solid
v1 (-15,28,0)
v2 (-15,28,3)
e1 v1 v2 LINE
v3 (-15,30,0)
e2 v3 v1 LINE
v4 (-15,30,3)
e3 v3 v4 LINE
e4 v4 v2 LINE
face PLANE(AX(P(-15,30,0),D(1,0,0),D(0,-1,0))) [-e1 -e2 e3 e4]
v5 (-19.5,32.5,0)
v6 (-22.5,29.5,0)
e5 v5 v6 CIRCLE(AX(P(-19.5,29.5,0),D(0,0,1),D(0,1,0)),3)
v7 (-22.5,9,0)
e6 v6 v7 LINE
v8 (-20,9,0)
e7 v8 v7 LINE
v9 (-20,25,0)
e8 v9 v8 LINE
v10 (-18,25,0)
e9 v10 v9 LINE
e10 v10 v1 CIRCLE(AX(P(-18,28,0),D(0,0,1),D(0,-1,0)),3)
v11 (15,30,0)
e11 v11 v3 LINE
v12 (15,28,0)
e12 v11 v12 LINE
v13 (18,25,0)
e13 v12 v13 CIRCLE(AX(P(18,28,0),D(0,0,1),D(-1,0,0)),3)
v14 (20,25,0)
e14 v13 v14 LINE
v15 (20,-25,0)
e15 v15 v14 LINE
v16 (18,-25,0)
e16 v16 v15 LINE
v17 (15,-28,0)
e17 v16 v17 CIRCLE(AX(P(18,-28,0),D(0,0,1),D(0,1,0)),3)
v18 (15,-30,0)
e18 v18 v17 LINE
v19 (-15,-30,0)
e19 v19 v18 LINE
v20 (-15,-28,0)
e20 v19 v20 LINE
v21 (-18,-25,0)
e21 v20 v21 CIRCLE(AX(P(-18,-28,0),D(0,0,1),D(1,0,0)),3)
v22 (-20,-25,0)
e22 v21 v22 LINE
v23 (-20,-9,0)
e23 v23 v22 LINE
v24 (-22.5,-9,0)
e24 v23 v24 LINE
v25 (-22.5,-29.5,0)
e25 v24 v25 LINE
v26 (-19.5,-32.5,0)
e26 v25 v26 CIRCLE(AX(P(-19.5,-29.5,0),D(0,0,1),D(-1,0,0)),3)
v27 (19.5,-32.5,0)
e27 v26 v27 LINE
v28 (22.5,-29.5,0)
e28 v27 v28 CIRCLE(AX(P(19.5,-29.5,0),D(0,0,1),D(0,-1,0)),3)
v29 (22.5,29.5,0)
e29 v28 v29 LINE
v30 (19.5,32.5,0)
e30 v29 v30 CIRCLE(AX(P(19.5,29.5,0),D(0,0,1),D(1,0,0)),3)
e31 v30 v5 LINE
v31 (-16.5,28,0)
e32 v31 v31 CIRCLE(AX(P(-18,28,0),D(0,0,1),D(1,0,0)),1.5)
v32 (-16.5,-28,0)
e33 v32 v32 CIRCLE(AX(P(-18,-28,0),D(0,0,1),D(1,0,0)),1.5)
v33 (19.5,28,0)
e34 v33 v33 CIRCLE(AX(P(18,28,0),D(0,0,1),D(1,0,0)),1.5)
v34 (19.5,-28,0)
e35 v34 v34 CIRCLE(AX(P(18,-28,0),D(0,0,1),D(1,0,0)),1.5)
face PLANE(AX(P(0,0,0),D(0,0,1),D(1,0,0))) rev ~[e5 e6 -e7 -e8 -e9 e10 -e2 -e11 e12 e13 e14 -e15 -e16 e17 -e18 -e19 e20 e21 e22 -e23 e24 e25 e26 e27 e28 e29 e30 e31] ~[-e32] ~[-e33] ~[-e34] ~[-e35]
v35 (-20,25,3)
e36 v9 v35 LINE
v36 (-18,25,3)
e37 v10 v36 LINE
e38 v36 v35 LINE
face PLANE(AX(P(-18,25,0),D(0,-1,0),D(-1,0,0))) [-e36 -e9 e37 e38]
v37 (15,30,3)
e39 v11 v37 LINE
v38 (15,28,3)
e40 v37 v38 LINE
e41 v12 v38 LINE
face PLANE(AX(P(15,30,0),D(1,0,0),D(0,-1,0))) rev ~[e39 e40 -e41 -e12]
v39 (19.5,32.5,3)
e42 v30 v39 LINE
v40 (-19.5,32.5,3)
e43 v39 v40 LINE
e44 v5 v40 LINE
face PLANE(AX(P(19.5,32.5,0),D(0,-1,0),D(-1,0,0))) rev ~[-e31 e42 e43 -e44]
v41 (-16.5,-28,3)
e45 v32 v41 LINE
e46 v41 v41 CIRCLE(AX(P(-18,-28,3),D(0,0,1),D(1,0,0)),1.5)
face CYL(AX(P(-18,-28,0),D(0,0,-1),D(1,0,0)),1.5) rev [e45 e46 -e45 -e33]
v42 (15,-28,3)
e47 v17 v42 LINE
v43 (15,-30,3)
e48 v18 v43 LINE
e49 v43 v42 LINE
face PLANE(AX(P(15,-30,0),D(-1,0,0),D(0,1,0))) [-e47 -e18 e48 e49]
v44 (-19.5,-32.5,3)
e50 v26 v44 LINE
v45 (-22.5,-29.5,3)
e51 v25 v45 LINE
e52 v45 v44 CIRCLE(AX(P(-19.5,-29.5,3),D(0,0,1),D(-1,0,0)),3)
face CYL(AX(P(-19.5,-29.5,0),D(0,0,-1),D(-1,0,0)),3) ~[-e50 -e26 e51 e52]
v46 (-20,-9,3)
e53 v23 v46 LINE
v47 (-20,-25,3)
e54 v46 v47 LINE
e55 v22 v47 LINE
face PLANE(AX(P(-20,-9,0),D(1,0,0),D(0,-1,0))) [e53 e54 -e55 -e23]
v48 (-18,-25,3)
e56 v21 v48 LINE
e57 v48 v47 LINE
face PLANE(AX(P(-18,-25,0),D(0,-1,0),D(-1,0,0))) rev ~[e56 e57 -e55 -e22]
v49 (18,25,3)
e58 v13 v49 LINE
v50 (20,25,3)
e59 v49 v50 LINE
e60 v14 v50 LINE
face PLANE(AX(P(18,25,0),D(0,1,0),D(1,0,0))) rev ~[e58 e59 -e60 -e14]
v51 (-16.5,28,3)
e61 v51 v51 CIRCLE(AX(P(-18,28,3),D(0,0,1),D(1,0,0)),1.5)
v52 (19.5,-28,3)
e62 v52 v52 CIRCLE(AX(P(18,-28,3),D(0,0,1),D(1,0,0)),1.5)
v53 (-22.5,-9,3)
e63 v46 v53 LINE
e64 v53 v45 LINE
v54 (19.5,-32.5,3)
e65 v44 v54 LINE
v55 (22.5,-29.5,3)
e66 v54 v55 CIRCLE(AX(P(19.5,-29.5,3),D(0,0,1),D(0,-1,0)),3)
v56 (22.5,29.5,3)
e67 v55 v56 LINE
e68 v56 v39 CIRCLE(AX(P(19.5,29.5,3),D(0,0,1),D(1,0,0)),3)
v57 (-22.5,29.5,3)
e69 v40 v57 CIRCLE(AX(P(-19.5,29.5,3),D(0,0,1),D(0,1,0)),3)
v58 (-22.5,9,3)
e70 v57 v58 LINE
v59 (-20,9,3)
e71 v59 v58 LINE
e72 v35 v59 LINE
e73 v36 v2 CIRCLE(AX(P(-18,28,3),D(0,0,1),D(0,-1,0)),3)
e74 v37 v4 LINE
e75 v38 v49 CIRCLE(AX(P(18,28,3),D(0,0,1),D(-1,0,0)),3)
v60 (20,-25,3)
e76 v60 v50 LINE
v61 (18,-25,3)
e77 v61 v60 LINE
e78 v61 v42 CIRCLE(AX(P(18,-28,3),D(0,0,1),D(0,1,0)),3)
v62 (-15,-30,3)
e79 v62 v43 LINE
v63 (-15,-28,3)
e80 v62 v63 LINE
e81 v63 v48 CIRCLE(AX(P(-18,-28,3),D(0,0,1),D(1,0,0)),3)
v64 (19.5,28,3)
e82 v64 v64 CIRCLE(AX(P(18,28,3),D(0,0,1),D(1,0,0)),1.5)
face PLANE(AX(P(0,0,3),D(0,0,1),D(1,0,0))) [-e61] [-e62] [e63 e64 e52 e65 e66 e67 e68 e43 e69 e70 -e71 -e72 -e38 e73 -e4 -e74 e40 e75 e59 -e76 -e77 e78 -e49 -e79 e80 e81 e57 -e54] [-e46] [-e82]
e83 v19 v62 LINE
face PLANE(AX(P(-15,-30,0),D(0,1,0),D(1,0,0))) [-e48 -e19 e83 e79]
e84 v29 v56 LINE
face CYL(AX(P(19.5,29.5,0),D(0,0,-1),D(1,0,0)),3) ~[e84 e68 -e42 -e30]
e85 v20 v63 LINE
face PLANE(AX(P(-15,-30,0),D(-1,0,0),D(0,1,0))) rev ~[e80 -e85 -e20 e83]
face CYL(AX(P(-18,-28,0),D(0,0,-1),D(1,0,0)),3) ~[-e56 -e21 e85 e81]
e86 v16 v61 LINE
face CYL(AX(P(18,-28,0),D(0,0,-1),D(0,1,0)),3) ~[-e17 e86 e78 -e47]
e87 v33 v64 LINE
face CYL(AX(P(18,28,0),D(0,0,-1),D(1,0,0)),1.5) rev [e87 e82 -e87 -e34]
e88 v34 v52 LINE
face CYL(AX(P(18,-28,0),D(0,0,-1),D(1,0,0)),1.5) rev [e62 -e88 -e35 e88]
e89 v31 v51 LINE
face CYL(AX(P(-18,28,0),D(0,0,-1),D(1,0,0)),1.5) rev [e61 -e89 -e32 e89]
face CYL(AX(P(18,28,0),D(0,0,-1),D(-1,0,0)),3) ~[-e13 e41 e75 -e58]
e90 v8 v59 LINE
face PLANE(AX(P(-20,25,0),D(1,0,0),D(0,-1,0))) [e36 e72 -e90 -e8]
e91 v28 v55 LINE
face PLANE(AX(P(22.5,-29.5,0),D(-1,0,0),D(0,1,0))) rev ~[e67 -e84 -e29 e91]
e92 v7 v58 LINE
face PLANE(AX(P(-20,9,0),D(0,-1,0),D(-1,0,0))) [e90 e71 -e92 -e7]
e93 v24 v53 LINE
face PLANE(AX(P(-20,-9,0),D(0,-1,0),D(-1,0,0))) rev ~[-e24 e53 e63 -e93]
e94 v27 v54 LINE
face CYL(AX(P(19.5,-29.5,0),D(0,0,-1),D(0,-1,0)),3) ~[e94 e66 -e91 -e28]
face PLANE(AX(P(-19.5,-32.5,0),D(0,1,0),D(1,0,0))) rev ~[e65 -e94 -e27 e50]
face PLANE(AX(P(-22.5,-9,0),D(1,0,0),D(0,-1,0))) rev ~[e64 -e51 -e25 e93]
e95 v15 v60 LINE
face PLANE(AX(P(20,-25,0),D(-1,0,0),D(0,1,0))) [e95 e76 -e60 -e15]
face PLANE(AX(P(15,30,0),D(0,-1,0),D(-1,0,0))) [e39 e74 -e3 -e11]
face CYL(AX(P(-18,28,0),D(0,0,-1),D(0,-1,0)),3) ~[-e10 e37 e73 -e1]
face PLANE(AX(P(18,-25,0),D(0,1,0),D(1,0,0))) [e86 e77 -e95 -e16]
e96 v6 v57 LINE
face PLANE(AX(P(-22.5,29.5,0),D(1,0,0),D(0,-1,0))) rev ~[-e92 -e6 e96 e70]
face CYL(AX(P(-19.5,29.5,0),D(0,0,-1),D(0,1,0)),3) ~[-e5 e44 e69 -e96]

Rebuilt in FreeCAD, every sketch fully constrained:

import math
import FreeCAD as App
import Part
import Sketcher
from FreeCAD import Vector
Q = App.Units.Quantity

doc = App.newDocument("Part")
body = doc.addObject("PartDesign::Body", "Body")

sketch1 = body.newObject("Sketcher::SketchObject", "Sketch")
sketch1.AttachmentSupport = (doc.getObject("XY_Plane"), [""])
sketch1.MapMode = "FlatFace"
sketch1.addGeometry([
    Part.ArcOfCircle(Part.Circle(Vector(19.5, 29.5, 0), Vector(0, 0, 1), 3), math.radians(0), math.radians(90)),
    Part.LineSegment(Vector(19.5, 32.5, 0), Vector(-19.5, 32.5, 0)),
    Part.ArcOfCircle(Part.Circle(Vector(-19.5, 29.5, 0), Vector(0, 0, 1), 3), math.radians(90), math.radians(180)),
    Part.LineSegment(Vector(-22.5, 29.5, 0), Vector(-22.5, 9, 0)),
    Part.LineSegment(Vector(-22.5, 9, 0), Vector(-20, 9, 0)),
    Part.LineSegment(Vector(-20, 9, 0), Vector(-20, 25, 0)),
    Part.LineSegment(Vector(-20, 25, 0), Vector(-18, 25, 0)),
    Part.ArcOfCircle(Part.Circle(Vector(-18, 28, 0), Vector(0, 0, 1), 3), math.radians(-90), math.radians(0)),
    Part.LineSegment(Vector(-15, 28, 0), Vector(-15, 30, 0)),
    Part.LineSegment(Vector(-15, 30, 0), Vector(15, 30, 0)),
    Part.LineSegment(Vector(15, 30, 0), Vector(15, 28, 0)),
    Part.ArcOfCircle(Part.Circle(Vector(18, 28, 0), Vector(0, 0, 1), 3), math.radians(180), math.radians(270)),
    Part.LineSegment(Vector(18, 25, 0), Vector(20, 25, 0)),
    Part.LineSegment(Vector(20, 25, 0), Vector(20, -25, 0)),
    Part.LineSegment(Vector(20, -25, 0), Vector(18, -25, 0)),
    Part.ArcOfCircle(Part.Circle(Vector(18, -28, 0), Vector(0, 0, 1), 3), math.radians(90), math.radians(180)),
    Part.LineSegment(Vector(15, -28, 0), Vector(15, -30, 0)),
    Part.LineSegment(Vector(15, -30, 0), Vector(-15, -30, 0)),
    Part.LineSegment(Vector(-15, -30, 0), Vector(-15, -28, 0)),
    Part.ArcOfCircle(Part.Circle(Vector(-18, -28, 0), Vector(0, 0, 1), 3), math.radians(0), math.radians(90)),
    Part.LineSegment(Vector(-18, -25, 0), Vector(-20, -25, 0)),
    Part.LineSegment(Vector(-20, -25, 0), Vector(-20, -9, 0)),
    Part.LineSegment(Vector(-20, -9, 0), Vector(-22.5, -9, 0)),
    Part.LineSegment(Vector(-22.5, -9, 0), Vector(-22.5, -29.5, 0)),
    Part.ArcOfCircle(Part.Circle(Vector(-19.5, -29.5, 0), Vector(0, 0, 1), 3), math.radians(180), math.radians(270)),
    Part.LineSegment(Vector(-19.5, -32.5, 0), Vector(19.5, -32.5, 0)),
    Part.ArcOfCircle(Part.Circle(Vector(19.5, -29.5, 0), Vector(0, 0, 1), 3), math.radians(-90), math.radians(0)),
    Part.LineSegment(Vector(22.5, -29.5, 0), Vector(22.5, 29.5, 0)),
    Part.Circle(Vector(-18, -28, 0), Vector(0, 0, 1), 1.5),
    Part.Circle(Vector(18, -28, 0), Vector(0, 0, 1), 1.5),
    Part.Circle(Vector(18, 28, 0), Vector(0, 0, 1), 1.5),
    Part.Circle(Vector(-18, 28, 0), Vector(0, 0, 1), 1.5),
], False)
sketch1.addConstraint([
    Sketcher.Constraint("Tangent", 0, 2, 1, 1),
    Sketcher.Constraint("Tangent", 1, 2, 2, 1),
    Sketcher.Constraint("Tangent", 2, 2, 3, 1),
    Sketcher.Constraint("Coincident", 3, 2, 4, 1),
    Sketcher.Constraint("Coincident", 4, 2, 5, 1),
    Sketcher.Constraint("Coincident", 5, 2, 6, 1),
    Sketcher.Constraint("Tangent", 6, 2, 7, 1),
    Sketcher.Constraint("Tangent", 7, 2, 8, 1),
    Sketcher.Constraint("Coincident", 8, 2, 9, 1),
    Sketcher.Constraint("Coincident", 9, 2, 10, 1),
    Sketcher.Constraint("Tangent", 10, 2, 11, 1),
    Sketcher.Constraint("Tangent", 11, 2, 12, 1),
    Sketcher.Constraint("Coincident", 12, 2, 13, 1),
    Sketcher.Constraint("Coincident", 13, 2, 14, 1),
    Sketcher.Constraint("Tangent", 14, 2, 15, 1),
    Sketcher.Constraint("Tangent", 15, 2, 16, 1),
    Sketcher.Constraint("Coincident", 16, 2, 17, 1),
    Sketcher.Constraint("Coincident", 17, 2, 18, 1),
    Sketcher.Constraint("Tangent", 18, 2, 19, 1),
    Sketcher.Constraint("Tangent", 19, 2, 20, 1),
    Sketcher.Constraint("Coincident", 20, 2, 21, 1),
    Sketcher.Constraint("Coincident", 21, 2, 22, 1),
    Sketcher.Constraint("Coincident", 22, 2, 23, 1),
    Sketcher.Constraint("Tangent", 23, 2, 24, 1),
    Sketcher.Constraint("Tangent", 24, 2, 25, 1),
    Sketcher.Constraint("Tangent", 25, 2, 26, 1),
    Sketcher.Constraint("Tangent", 26, 2, 27, 1),
    Sketcher.Constraint("Tangent", 27, 2, 0, 1),
    Sketcher.Constraint("Horizontal", 1),
    Sketcher.Constraint("Vertical", 3),
    Sketcher.Constraint("Horizontal", 4),
    Sketcher.Constraint("Vertical", 5),
    Sketcher.Constraint("Horizontal", 6),
    Sketcher.Constraint("Vertical", 8),
    Sketcher.Constraint("Horizontal", 9),
    Sketcher.Constraint("Vertical", 10),
    Sketcher.Constraint("Horizontal", 12),
    Sketcher.Constraint("Vertical", 13),
    Sketcher.Constraint("Horizontal", 14),
    Sketcher.Constraint("Vertical", 16),
    Sketcher.Constraint("Horizontal", 17),
    Sketcher.Constraint("Vertical", 18),
    Sketcher.Constraint("Horizontal", 20),
    Sketcher.Constraint("Vertical", 21),
    Sketcher.Constraint("Horizontal", 22),
    Sketcher.Constraint("Vertical", 23),
    Sketcher.Constraint("Horizontal", 25),
    Sketcher.Constraint("Vertical", 27),
    Sketcher.Constraint("Coincident", 28, 3, 19, 3),
    Sketcher.Constraint("Coincident", 29, 3, 15, 3),
    Sketcher.Constraint("Coincident", 30, 3, 11, 3),
    Sketcher.Constraint("Coincident", 31, 3, 7, 3),
    Sketcher.Constraint("Equal", 0, 2),
    Sketcher.Constraint("Equal", 2, 7),
    Sketcher.Constraint("Equal", 7, 11),
    Sketcher.Constraint("Equal", 11, 15),
    Sketcher.Constraint("Equal", 15, 19),
    Sketcher.Constraint("Equal", 19, 24),
    Sketcher.Constraint("Equal", 24, 26),
    Sketcher.Constraint("Equal", 28, 29),
    Sketcher.Constraint("Equal", 29, 30),
    Sketcher.Constraint("Equal", 30, 31),
    Sketcher.Constraint("Symmetric", 7, 3, 15, 3, -1, 1),
    Sketcher.Constraint("Symmetric", 11, 3, 19, 3, -1, 1),
    Sketcher.Constraint("Symmetric", 0, 3, 24, 3, -1, 1),
    Sketcher.Constraint("Symmetric", 7, 3, 11, 3, -2),
    Sketcher.Constraint("Symmetric", 4, 2, 21, 2, -1),
    Sketcher.Constraint("Vertical", 2, 3, 24, 3),
    Sketcher.Constraint("Equal", 6, 12),
    Sketcher.Constraint("Equal", 20, 8),
    Sketcher.Constraint("Equal", 10, 16),
    Sketcher.Constraint("Diameter", 28, Q("3 mm")),
    Sketcher.Constraint("Radius", 0, Q("3 mm")),
    Sketcher.Constraint("DistanceX", 5, 2, 7, 2, Q("5 mm")),
    Sketcher.Constraint("DistanceX", 1, 2, 1, 1, Q("39 mm")),
    Sketcher.Constraint("DistanceX", 9, 1, 9, 2, Q("30 mm")),
    Sketcher.Constraint("DistanceY", 5, 1, 5, 2, Q("16 mm")),
    Sketcher.Constraint("DistanceY", 13, 2, 13, 1, Q("50 mm")),
    Sketcher.Constraint("DistanceY", 27, 1, 27, 2, Q("59 mm")),
])
pad1 = body.newObject("PartDesign::Pad", "Pad")
pad1.Profile = sketch1
pad1.Length = 3

doc.recompute()
